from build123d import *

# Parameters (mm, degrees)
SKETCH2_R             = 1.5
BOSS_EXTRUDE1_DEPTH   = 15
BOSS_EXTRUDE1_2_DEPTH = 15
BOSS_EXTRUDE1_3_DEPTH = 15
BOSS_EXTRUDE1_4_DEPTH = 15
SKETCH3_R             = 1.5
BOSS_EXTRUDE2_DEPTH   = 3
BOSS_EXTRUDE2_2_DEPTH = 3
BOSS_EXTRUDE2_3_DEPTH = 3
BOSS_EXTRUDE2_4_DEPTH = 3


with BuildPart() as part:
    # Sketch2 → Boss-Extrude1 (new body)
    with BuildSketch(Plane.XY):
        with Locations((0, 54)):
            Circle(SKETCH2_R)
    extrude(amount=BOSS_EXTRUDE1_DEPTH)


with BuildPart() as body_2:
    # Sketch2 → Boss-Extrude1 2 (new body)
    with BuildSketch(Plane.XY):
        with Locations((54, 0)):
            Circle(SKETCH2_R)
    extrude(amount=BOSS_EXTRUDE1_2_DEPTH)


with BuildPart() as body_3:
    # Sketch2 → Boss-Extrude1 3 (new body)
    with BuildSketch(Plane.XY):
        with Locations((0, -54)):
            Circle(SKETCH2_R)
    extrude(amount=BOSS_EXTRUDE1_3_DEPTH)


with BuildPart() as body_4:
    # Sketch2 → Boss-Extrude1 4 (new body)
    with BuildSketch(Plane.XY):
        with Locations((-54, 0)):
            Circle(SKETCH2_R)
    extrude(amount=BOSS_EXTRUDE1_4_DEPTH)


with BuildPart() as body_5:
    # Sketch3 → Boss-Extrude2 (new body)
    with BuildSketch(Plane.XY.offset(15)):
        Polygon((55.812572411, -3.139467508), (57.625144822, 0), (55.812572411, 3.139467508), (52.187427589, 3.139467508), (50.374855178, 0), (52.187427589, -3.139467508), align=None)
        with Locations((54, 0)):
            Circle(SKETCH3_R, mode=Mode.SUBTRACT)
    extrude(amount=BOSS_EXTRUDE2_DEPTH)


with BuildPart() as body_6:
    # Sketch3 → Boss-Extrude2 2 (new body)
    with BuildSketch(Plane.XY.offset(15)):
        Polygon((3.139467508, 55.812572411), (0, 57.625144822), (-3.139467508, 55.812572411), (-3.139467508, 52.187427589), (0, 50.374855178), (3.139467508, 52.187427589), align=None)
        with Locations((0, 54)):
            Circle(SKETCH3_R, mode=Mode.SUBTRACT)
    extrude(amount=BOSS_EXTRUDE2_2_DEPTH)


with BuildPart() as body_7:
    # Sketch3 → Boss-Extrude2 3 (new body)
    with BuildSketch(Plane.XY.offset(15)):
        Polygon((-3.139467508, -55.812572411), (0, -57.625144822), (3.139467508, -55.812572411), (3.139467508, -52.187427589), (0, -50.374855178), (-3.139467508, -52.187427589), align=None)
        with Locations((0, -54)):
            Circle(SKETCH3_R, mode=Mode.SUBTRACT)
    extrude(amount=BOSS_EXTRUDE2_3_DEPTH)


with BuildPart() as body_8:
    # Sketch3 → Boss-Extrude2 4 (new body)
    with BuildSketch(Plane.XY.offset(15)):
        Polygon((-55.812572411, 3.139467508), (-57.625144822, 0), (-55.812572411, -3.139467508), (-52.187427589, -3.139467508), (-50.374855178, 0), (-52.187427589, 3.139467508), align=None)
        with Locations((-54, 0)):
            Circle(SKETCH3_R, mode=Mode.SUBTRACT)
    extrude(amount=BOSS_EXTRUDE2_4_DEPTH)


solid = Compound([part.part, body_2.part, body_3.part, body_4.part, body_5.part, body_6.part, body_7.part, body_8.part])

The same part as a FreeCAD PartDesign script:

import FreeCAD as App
import Part
import Sketcher
from FreeCAD import Vector
Q = App.Units.Quantity


def add_polygon(sketch, points):
    """Adds a closed chain of lines whose ends are joined by coincident constraints."""
    first, n = sketch.GeometryCount, len(points)
    for a, b in zip(points, points[1:] + points[:1]):
        sketch.addGeometry(Part.LineSegment(App.Vector(*a, 0), App.Vector(*b, 0)), False)
    for i in range(n):
        sketch.addConstraint(Sketcher.Constraint("Coincident", first + i, 2, first + (i + 1) % n, 1))

doc = App.newDocument("Part")
body = doc.addObject("PartDesign::Body", "Body")

# Sketch on XY plane
sketch1 = body.newObject("Sketcher::SketchObject", "Sketch")
sketch1.AttachmentSupport = (doc.getObject("XY_Plane"), [""])
sketch1.MapMode = "FlatFace"
sketch1.addGeometry(Part.Circle(Vector(0, 54, 0), Vector(0, 0, 1), 1.5), False)
sketch1.addConstraint([
    Sketcher.Constraint("PointOnObject", 0, 3, -2),
    Sketcher.Constraint("Diameter", 0, 3.0),
    Sketcher.Constraint("DistanceY", -1, 1, 0, 3, 54.0),
])
pad1 = body.newObject("PartDesign::Pad", "Pad")
pad1.Profile = sketch1
pad1.Length = 15
body2 = doc.addObject("PartDesign::Body", "Body001")

# Sketch on XY plane
sketch2 = body2.newObject("Sketcher::SketchObject", "Sketch001")
sketch2.AttachmentSupport = (doc.getObject("XY_Plane001"), [""])
sketch2.MapMode = "FlatFace"
sketch2.addGeometry(Part.Circle(Vector(54, 0, 0), Vector(0, 0, 1), 1.5), False)
sketch2.addConstraint([
    Sketcher.Constraint("PointOnObject", 0, 3, -1),
    Sketcher.Constraint("Diameter", 0, 3.0),
    Sketcher.Constraint("DistanceX", -1, 1, 0, 3, 54.0),
])
pad2 = body2.newObject("PartDesign::Pad", "Pad001")
pad2.Profile = sketch2
pad2.Length = 15
body3 = doc.addObject("PartDesign::Body", "Body002")

# Sketch on XY plane
sketch3 = body3.newObject("Sketcher::SketchObject", "Sketch002")
sketch3.AttachmentSupport = (doc.getObject("XY_Plane002"), [""])
sketch3.MapMode = "FlatFace"
sketch3.addGeometry(Part.Circle(Vector(0, -54, 0), Vector(0, 0, 1), 1.5), False)
sketch3.addConstraint([
    Sketcher.Constraint("PointOnObject", 0, 3, -2),
    Sketcher.Constraint("Diameter", 0, 3.0),
    Sketcher.Constraint("DistanceY", 0, 3, -1, 1, 54.0),
])
pad3 = body3.newObject("PartDesign::Pad", "Pad002")
pad3.Profile = sketch3
pad3.Length = 15
body4 = doc.addObject("PartDesign::Body", "Body003")

# Sketch on XY plane
sketch4 = body4.newObject("Sketcher::SketchObject", "Sketch003")
sketch4.AttachmentSupport = (doc.getObject("XY_Plane003"), [""])
sketch4.MapMode = "FlatFace"
sketch4.addGeometry(Part.Circle(Vector(-54, 0, 0), Vector(0, 0, 1), 1.5), False)
sketch4.addConstraint([
    Sketcher.Constraint("PointOnObject", 0, 3, -1),
    Sketcher.Constraint("Diameter", 0, 3.0),
    Sketcher.Constraint("DistanceX", 0, 3, -1, 1, 54.0),
])
pad4 = body4.newObject("PartDesign::Pad", "Pad003")
pad4.Profile = sketch4
pad4.Length = 15
body5 = doc.addObject("PartDesign::Body", "Body004")

# Sketch on XY plane
sketch5 = body5.newObject("Sketcher::SketchObject", "Sketch004")
sketch5.AttachmentSupport = (doc.getObject("XY_Plane004"), [""])
sketch5.MapMode = "FlatFace"
sketch5.AttachmentOffset = App.Placement(Vector(0, 0, 15), App.Rotation())
add_polygon(sketch5, [(55.8, -3.1), (57.6, 0), (55.8, 3.1), (52.2, 3.1), (50.4, 0), (52.2, -3.1)])  # lines 0-5
sketch5.addGeometry(Part.Circle(Vector(54, 0, 0), Vector(0, 0, 1), 1.5), False)  # 6
sketch5.addConstraint([
    Sketcher.Constraint("Horizontal", 2),
    Sketcher.Constraint("Horizontal", 5),
    Sketcher.Constraint("Symmetric", 2, 2, 4, 2, -1),
    Sketcher.Constraint("PointOnObject", 6, 3, -1),
    Sketcher.Constraint("PointOnObject", 0, 2, -1),
    Sketcher.Constraint("PointOnObject", 3, 2, -1),
    Sketcher.Constraint("Parallel", 0, 3),
    Sketcher.Constraint("Parallel", 1, 4),
    Sketcher.Constraint("Diameter", 6, 3.0),
    Sketcher.Constraint("Angle", 0, Q("60 deg")),
    Sketcher.Constraint("DistanceX", -1, 1, 6, 3, 54.0),
    Sketcher.Constraint("DistanceX", 2, 2, 2, 1, 3.625145),
    Sketcher.Constraint("DistanceX", 3, 2, 0, 2, 7.25029),
    Sketcher.Constraint("DistanceX", -1, 1, 0, 2, 57.625145),
])
pad5 = body5.newObject("PartDesign::Pad", "Pad004")
pad5.Profile = sketch5
pad5.Length = 3
body6 = doc.addObject("PartDesign::Body", "Body005")

# Sketch on XY plane
sketch6 = body6.newObject("Sketcher::SketchObject", "Sketch005")
sketch6.AttachmentSupport = (doc.getObject("XY_Plane005"), [""])
sketch6.MapMode = "FlatFace"
sketch6.AttachmentOffset = App.Placement(Vector(0, 0, 15), App.Rotation())
add_polygon(sketch6, [(3.1, 55.8), (0, 57.6), (-3.1, 55.8), (-3.1, 52.2), (0, 50.4), (3.1, 52.2)])  # lines 0-5
sketch6.addGeometry(Part.Circle(Vector(0, 54, 0), Vector(0, 0, 1), 1.5), False)  # 6
sketch6.addConstraint([
    Sketcher.Constraint("Vertical", 2),
    Sketcher.Constraint("Vertical", 5),
    Sketcher.Constraint("Symmetric", 2, 2, 4, 2, -2),
    Sketcher.Constraint("PointOnObject", 6, 3, -2),
    Sketcher.Constraint("PointOnObject", 0, 2, -2),
    Sketcher.Constraint("PointOnObject", 3, 2, -2),
    Sketcher.Constraint("Parallel", 0, 3),
    Sketcher.Constraint("Parallel", 1, 4),
    Sketcher.Constraint("Diameter", 6, 3.0),
    Sketcher.Constraint("Angle", 0, Q("150 deg")),
    Sketcher.Constraint("DistanceY", -1, 1, 6, 3, 54.0),
    Sketcher.Constraint("DistanceY", 2, 2, 2, 1, 3.625145),
    Sketcher.Constraint("DistanceY", 3, 2, 0, 2, 7.25029),
    Sketcher.Constraint("DistanceY", -1, 1, 0, 2, 57.625145),
])
pad6 = body6.newObject("PartDesign::Pad", "Pad005")
pad6.Profile = sketch6
pad6.Length = 3
body7 = doc.addObject("PartDesign::Body", "Body006")

# Sketch on XY plane
sketch7 = body7.newObject("Sketcher::SketchObject", "Sketch006")
sketch7.AttachmentSupport = (doc.getObject("XY_Plane006"), [""])
sketch7.MapMode = "FlatFace"
sketch7.AttachmentOffset = App.Placement(Vector(0, 0, 15), App.Rotation())
add_polygon(sketch7, [(-3.1, -55.8), (0, -57.6), (3.1, -55.8), (3.1, -52.2), (0, -50.4), (-3.1, -52.2)])  # lines 0-5
sketch7.addGeometry(Part.Circle(Vector(0, -54, 0), Vector(0, 0, 1), 1.5), False)  # 6
sketch7.addConstraint([
    Sketcher.Constraint("Vertical", 2),
    Sketcher.Constraint("Vertical", 5),
    Sketcher.Constraint("Symmetric", 2, 2, 4, 2, -2),
    Sketcher.Constraint("PointOnObject", 6, 3, -2),
    Sketcher.Constraint("PointOnObject", 0, 2, -2),
    Sketcher.Constraint("PointOnObject", 3, 2, -2),
    Sketcher.Constraint("Parallel", 0, 3),
    Sketcher.Constraint("Parallel", 1, 4),
    Sketcher.Constraint("Diameter", 6, 3.0),
    Sketcher.Constraint("Angle", 0, Q("-30 deg")),
    Sketcher.Constraint("DistanceY", 6, 3, -1, 1, 54.0),
    Sketcher.Constraint("DistanceY", 2, 1, 2, 2, 3.625145),
    Sketcher.Constraint("DistanceY", 0, 2, 3, 2, 7.25029),
    Sketcher.Constraint("DistanceY", 0, 2, -1, 1, 57.625145),
])
pad7 = body7.newObject("PartDesign::Pad", "Pad006")
pad7.Profile = sketch7
pad7.Length = 3
body8 = doc.addObject("PartDesign::Body", "Body007")

# Sketch on XY plane
sketch8 = body8.newObject("Sketcher::SketchObject", "Sketch007")
sketch8.AttachmentSupport = (doc.getObject("XY_Plane007"), [""])
sketch8.MapMode = "FlatFace"
sketch8.AttachmentOffset = App.Placement(Vector(0, 0, 15), App.Rotation())
add_polygon(sketch8, [(-55.8, 3.1), (-57.6, 0), (-55.8, -3.1), (-52.2, -3.1), (-50.4, 0), (-52.2, 3.1)])  # lines 0-5
sketch8.addGeometry(Part.Circle(Vector(-54, 0, 0), Vector(0, 0, 1), 1.5), False)  # 6
sketch8.addConstraint([
    Sketcher.Constraint("Horizontal", 2),
    Sketcher.Constraint("Horizontal", 5),
    Sketcher.Constraint("Symmetric", 2, 2, 4, 2, -1),
    Sketcher.Constraint("PointOnObject", 6, 3, -1),
    Sketcher.Constraint("PointOnObject", 0, 2, -1),
    Sketcher.Constraint("PointOnObject", 3, 2, -1),
    Sketcher.Constraint("Parallel", 0, 3),
    Sketcher.Constraint("Parallel", 1, 4),
    Sketcher.Constraint("Diameter", 6, 3.0),
    Sketcher.Constraint("Angle", 0, Q("-120 deg")),
    Sketcher.Constraint("DistanceX", 6, 3, -1, 1, 54.0),
    Sketcher.Constraint("DistanceX", 2, 1, 2, 2, 3.625145),
    Sketcher.Constraint("DistanceX", 0, 2, 3, 2, 7.25029),
    Sketcher.Constraint("DistanceX", 0, 2, -1, 1, 57.625145),
])
pad8 = body8.newObject("PartDesign::Pad", "Pad007")
pad8.Profile = sketch8
pad8.Length = 3

doc.recompute()
